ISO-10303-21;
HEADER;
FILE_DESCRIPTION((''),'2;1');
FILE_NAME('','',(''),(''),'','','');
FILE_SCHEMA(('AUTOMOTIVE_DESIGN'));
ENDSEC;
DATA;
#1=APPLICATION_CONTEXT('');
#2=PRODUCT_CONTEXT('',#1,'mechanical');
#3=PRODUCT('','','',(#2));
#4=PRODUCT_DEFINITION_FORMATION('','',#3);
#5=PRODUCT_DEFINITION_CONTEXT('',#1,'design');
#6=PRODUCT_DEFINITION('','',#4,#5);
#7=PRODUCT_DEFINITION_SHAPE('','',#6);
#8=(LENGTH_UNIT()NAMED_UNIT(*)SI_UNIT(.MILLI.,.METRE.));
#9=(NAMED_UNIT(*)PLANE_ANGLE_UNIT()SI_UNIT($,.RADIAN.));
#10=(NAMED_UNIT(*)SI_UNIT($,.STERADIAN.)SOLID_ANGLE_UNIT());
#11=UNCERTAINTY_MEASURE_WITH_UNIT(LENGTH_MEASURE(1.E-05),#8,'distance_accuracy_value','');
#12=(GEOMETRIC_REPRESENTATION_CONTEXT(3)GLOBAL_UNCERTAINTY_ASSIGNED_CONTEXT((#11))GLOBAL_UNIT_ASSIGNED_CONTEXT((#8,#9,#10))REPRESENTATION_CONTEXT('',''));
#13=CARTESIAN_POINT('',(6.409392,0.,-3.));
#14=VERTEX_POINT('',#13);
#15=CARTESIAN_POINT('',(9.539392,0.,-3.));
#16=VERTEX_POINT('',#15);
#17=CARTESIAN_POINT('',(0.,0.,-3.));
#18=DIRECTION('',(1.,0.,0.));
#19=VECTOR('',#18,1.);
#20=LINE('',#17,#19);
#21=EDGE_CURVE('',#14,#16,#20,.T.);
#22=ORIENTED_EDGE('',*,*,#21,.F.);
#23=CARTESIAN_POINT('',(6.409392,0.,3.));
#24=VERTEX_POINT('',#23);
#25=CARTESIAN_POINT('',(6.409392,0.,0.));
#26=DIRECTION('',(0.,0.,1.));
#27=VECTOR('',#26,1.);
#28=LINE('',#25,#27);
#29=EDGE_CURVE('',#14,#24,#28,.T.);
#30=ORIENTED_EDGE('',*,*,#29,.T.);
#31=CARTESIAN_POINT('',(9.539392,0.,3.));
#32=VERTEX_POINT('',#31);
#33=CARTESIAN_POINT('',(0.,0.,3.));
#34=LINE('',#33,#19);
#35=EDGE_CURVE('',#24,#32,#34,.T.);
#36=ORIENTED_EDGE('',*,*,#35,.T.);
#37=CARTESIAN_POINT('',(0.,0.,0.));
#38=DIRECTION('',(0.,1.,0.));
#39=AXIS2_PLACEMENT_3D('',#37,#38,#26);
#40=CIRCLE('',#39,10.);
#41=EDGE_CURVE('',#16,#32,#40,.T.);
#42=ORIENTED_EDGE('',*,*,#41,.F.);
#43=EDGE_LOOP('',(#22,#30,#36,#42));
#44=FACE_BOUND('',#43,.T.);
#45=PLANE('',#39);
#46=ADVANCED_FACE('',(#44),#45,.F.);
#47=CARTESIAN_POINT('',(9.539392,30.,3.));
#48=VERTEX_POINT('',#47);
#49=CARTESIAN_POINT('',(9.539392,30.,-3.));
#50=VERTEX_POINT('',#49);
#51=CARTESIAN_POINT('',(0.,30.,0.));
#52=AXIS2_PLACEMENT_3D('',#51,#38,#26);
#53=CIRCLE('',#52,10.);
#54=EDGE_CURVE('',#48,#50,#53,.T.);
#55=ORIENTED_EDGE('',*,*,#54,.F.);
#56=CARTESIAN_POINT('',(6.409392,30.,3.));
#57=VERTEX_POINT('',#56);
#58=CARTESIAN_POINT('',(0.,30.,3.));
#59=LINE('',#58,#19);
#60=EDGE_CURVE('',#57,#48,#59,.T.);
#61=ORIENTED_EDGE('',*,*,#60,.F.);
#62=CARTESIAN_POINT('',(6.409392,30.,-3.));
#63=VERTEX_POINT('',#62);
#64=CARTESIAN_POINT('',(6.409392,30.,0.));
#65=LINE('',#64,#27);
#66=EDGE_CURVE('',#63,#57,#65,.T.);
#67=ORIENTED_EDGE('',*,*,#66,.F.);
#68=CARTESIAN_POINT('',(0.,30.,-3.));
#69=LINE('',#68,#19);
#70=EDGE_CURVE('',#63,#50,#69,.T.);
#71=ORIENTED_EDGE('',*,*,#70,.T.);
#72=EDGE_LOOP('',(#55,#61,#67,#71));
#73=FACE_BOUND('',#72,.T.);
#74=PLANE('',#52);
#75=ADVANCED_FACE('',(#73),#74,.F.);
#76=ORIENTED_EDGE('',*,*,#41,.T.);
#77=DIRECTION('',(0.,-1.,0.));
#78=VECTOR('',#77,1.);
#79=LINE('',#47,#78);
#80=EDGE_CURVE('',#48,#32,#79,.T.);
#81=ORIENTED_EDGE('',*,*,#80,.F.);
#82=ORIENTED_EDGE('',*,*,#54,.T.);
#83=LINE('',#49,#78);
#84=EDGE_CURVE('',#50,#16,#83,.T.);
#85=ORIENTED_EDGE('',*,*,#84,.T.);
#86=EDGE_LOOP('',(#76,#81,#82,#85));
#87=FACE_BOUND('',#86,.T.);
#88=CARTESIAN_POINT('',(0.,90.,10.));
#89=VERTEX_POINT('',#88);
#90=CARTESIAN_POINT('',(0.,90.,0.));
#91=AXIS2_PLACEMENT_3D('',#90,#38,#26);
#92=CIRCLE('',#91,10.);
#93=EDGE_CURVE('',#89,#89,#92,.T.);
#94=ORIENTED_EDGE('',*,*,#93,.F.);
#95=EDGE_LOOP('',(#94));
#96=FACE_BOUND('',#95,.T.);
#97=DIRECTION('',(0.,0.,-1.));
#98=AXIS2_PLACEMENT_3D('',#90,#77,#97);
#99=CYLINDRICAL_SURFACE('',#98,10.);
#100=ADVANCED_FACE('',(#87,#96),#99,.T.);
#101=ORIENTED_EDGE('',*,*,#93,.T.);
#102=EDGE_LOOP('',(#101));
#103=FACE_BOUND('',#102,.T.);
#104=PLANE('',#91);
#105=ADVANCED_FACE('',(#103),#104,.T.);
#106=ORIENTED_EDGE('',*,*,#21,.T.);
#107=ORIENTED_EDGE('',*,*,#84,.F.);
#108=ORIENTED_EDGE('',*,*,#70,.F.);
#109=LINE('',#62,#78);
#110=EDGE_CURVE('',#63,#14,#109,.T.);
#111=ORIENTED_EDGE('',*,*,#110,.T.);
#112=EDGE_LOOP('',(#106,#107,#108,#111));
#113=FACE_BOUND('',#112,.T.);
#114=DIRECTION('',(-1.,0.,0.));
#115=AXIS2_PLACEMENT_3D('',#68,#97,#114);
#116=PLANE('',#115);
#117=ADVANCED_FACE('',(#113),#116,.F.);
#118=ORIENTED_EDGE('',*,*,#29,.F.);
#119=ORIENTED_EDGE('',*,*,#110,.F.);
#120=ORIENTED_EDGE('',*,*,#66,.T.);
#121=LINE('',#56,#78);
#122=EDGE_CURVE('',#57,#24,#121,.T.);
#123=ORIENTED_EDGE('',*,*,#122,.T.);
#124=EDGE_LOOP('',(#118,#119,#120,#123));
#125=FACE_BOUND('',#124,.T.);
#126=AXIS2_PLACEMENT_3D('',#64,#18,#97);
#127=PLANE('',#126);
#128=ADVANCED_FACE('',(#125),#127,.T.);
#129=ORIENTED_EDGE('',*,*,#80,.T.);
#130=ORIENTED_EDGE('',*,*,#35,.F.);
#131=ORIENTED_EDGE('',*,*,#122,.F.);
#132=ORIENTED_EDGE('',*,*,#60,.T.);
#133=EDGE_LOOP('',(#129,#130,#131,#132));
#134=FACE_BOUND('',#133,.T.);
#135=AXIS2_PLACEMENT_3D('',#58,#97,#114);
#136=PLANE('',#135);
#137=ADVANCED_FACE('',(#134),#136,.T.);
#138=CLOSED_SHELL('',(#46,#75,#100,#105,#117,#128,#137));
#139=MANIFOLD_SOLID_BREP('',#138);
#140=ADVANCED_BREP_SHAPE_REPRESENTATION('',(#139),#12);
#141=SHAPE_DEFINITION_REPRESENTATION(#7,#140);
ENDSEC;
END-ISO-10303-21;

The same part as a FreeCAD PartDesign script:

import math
import FreeCAD as App
import Part
import Sketcher
from FreeCAD import Vector
Q = App.Units.Quantity

doc = App.newDocument("Part")
body = doc.addObject("PartDesign::Body", "Body")

sketch1 = body.newObject("Sketcher::SketchObject", "Sketch")
sketch1.AttachmentSupport = (doc.getObject("XZ_Plane"), [""])
sketch1.MapMode = "FlatFace"
sketch1.addGeometry(Part.ArcOfCircle(Part.Circle(Vector(0, 0, 0), Vector(0, 0, 1), 10), math.radians(17), math.radians(343)), False)
sketch1.addGeometry(Part.ArcOfCircle(Part.Circle(Vector(0, 0, 0), Vector(0, 0, 1), 10), math.radians(0), math.radians(17.46)), False)
sketch1.addGeometry(Part.ArcOfCircle(Part.Circle(Vector(0, 0, 0), Vector(0, 0, 1), 10), math.radians(-17.46), math.radians(0)), False)
sketch1.addConstraint(Sketcher.Constraint("Tangent", 0, 1, 1, 2))
sketch1.addConstraint(Sketcher.Constraint("Tangent", 1, 1, 2, 2))
sketch1.addConstraint(Sketcher.Constraint("Tangent", 2, 1, 0, 2))
sketch1.addConstraint(Sketcher.Constraint("Coincident", 0, 3, -1, 1))
sketch1.addConstraint(Sketcher.Constraint("PointOnObject", 1, 1, -1))
sketch1.addConstraint(Sketcher.Constraint("Vertical", 0, 1, 2, 1))
sketch1.addConstraint(Sketcher.Constraint("Radius", 0, Q("10 mm")))
sketch1.addConstraint(Sketcher.Constraint("DistanceY", -1, 1, 0, 1, Q("3 mm")))
pad1 = body.newObject("PartDesign::Pad", "Pad")
pad1.Profile = sketch1
pad1.Length = 90
pad1.Reversed = True

sketch2 = body.newObject("Sketcher::SketchObject", "Sketch001")
sketch2.AttachmentSupport = (doc.getObject("XZ_Plane"), [""])
sketch2.MapMode = "FlatFace"
sketch2.addGeometry(Part.LineSegment(Vector(9.5, -3, 0), Vector(6.4, -3, 0)), False)
sketch2.addGeometry(Part.LineSegment(Vector(6.4, -3, 0), Vector(6.4, 3, 0)), False)
sketch2.addGeometry(Part.LineSegment(Vector(6.4, 3, 0), Vector(9.5, 3, 0)), False)
sketch2.addGeometry(Part.ArcOfCircle(Part.Circle(Vector(0, 0, 0), Vector(0, 0, 1), 10), math.radians(0), math.radians(17.46)), False)
sketch2.addGeometry(Part.ArcOfCircle(Part.Circle(Vector(0, 0, 0), Vector(0, 0, 1), 10), math.radians(-17.46), math.radians(0)), False)
sketch2.addConstraint(Sketcher.Constraint("Coincident", 0, 2, 1, 1))
sketch2.addConstraint(Sketcher.Constraint("Coincident", 1, 2, 2, 1))
sketch2.addConstraint(Sketcher.Constraint("Coincident", 2, 2, 3, 2))
sketch2.addConstraint(Sketcher.Constraint("Tangent", 3, 1, 4, 2))
sketch2.addConstraint(Sketcher.Constraint("Coincident", 4, 1, 0, 1))
sketch2.addConstraint(Sketcher.Constraint("Horizontal", 0))
sketch2.addConstraint(Sketcher.Constraint("Vertical", 1))
sketch2.addConstraint(Sketcher.Constraint("Horizontal", 2))
sketch2.addConstraint(Sketcher.Constraint("Coincident", 3, 3, -1, 1))
sketch2.addConstraint(Sketcher.Constraint("Equal", 3, 4))
sketch2.addConstraint(Sketcher.Constraint("PointOnObject", 3, 1, -1))
sketch2.addConstraint(Sketcher.Constraint("Vertical", 2, 2, 4, 1))
sketch2.addConstraint(Sketcher.Constraint("Radius", 3, Q("10 mm")))
sketch2.addConstraint(Sketcher.Constraint("DistanceY", 1, 1, 1, 2, Q("6 mm")))
sketch2.addConstraint(Sketcher.Constraint("DistanceX", 0, 2, 0, 1, Q("3.13 mm")))
pocket1 = body.newObject("PartDesign::Pocket", "Pocket")
pocket1.Profile = sketch2
pocket1.Length = 30

doc.recompute()
